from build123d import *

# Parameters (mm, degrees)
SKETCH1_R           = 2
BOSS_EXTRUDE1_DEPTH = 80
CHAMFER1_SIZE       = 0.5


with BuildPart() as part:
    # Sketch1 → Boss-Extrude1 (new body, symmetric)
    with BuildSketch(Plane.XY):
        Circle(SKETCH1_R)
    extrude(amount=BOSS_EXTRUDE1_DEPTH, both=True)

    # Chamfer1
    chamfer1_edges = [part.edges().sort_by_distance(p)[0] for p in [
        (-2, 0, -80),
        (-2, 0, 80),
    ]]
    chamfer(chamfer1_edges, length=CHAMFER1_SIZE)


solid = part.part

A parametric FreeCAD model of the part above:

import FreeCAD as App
import Part
import Sketcher

V = App.Vector
Q = App.Units.Quantity


def edges_at(feature, points):
    """Names of the edges that pass closest to the given points."""
    edges = feature.Shape.Edges
    near = lambda p: min(range(len(edges)), key=lambda i: edges[i].distToShape(Part.Vertex(*p))[0])
    return sorted({f"Edge{near(p) + 1}" for p in points})

doc = App.newDocument("Part")
body = doc.addObject("PartDesign::Body", "Body")

# Sketch on XY plane
sketch1 = body.newObject("Sketcher::SketchObject", "Sketch")
sketch1.AttachmentSupport = (doc.getObject("XY_Plane"), [""])
sketch1.MapMode = "FlatFace"
sketch1.addGeometry(Part.Circle(V(0, 0, 0), V(0, 0, 1), 2), False)
sketch1.addConstraint([
    Sketcher.Constraint("Coincident", 0, 3, -1, 1),
    Sketcher.Constraint("Diameter", 0, Q("4 mm")),
])
pad1 = body.newObject("PartDesign::Pad", "Pad")
pad1.Profile = sketch1
pad1.Length = 160
pad1.Midplane = True
doc.recompute()

chamfer = body.newObject("PartDesign::Chamfer", "Chamfer")
chamfer.Base = (pad1, edges_at(pad1, [(-2, 0, -80), (-2, 0, 80)]))
chamfer.Size = 0.5

doc.recompute()
